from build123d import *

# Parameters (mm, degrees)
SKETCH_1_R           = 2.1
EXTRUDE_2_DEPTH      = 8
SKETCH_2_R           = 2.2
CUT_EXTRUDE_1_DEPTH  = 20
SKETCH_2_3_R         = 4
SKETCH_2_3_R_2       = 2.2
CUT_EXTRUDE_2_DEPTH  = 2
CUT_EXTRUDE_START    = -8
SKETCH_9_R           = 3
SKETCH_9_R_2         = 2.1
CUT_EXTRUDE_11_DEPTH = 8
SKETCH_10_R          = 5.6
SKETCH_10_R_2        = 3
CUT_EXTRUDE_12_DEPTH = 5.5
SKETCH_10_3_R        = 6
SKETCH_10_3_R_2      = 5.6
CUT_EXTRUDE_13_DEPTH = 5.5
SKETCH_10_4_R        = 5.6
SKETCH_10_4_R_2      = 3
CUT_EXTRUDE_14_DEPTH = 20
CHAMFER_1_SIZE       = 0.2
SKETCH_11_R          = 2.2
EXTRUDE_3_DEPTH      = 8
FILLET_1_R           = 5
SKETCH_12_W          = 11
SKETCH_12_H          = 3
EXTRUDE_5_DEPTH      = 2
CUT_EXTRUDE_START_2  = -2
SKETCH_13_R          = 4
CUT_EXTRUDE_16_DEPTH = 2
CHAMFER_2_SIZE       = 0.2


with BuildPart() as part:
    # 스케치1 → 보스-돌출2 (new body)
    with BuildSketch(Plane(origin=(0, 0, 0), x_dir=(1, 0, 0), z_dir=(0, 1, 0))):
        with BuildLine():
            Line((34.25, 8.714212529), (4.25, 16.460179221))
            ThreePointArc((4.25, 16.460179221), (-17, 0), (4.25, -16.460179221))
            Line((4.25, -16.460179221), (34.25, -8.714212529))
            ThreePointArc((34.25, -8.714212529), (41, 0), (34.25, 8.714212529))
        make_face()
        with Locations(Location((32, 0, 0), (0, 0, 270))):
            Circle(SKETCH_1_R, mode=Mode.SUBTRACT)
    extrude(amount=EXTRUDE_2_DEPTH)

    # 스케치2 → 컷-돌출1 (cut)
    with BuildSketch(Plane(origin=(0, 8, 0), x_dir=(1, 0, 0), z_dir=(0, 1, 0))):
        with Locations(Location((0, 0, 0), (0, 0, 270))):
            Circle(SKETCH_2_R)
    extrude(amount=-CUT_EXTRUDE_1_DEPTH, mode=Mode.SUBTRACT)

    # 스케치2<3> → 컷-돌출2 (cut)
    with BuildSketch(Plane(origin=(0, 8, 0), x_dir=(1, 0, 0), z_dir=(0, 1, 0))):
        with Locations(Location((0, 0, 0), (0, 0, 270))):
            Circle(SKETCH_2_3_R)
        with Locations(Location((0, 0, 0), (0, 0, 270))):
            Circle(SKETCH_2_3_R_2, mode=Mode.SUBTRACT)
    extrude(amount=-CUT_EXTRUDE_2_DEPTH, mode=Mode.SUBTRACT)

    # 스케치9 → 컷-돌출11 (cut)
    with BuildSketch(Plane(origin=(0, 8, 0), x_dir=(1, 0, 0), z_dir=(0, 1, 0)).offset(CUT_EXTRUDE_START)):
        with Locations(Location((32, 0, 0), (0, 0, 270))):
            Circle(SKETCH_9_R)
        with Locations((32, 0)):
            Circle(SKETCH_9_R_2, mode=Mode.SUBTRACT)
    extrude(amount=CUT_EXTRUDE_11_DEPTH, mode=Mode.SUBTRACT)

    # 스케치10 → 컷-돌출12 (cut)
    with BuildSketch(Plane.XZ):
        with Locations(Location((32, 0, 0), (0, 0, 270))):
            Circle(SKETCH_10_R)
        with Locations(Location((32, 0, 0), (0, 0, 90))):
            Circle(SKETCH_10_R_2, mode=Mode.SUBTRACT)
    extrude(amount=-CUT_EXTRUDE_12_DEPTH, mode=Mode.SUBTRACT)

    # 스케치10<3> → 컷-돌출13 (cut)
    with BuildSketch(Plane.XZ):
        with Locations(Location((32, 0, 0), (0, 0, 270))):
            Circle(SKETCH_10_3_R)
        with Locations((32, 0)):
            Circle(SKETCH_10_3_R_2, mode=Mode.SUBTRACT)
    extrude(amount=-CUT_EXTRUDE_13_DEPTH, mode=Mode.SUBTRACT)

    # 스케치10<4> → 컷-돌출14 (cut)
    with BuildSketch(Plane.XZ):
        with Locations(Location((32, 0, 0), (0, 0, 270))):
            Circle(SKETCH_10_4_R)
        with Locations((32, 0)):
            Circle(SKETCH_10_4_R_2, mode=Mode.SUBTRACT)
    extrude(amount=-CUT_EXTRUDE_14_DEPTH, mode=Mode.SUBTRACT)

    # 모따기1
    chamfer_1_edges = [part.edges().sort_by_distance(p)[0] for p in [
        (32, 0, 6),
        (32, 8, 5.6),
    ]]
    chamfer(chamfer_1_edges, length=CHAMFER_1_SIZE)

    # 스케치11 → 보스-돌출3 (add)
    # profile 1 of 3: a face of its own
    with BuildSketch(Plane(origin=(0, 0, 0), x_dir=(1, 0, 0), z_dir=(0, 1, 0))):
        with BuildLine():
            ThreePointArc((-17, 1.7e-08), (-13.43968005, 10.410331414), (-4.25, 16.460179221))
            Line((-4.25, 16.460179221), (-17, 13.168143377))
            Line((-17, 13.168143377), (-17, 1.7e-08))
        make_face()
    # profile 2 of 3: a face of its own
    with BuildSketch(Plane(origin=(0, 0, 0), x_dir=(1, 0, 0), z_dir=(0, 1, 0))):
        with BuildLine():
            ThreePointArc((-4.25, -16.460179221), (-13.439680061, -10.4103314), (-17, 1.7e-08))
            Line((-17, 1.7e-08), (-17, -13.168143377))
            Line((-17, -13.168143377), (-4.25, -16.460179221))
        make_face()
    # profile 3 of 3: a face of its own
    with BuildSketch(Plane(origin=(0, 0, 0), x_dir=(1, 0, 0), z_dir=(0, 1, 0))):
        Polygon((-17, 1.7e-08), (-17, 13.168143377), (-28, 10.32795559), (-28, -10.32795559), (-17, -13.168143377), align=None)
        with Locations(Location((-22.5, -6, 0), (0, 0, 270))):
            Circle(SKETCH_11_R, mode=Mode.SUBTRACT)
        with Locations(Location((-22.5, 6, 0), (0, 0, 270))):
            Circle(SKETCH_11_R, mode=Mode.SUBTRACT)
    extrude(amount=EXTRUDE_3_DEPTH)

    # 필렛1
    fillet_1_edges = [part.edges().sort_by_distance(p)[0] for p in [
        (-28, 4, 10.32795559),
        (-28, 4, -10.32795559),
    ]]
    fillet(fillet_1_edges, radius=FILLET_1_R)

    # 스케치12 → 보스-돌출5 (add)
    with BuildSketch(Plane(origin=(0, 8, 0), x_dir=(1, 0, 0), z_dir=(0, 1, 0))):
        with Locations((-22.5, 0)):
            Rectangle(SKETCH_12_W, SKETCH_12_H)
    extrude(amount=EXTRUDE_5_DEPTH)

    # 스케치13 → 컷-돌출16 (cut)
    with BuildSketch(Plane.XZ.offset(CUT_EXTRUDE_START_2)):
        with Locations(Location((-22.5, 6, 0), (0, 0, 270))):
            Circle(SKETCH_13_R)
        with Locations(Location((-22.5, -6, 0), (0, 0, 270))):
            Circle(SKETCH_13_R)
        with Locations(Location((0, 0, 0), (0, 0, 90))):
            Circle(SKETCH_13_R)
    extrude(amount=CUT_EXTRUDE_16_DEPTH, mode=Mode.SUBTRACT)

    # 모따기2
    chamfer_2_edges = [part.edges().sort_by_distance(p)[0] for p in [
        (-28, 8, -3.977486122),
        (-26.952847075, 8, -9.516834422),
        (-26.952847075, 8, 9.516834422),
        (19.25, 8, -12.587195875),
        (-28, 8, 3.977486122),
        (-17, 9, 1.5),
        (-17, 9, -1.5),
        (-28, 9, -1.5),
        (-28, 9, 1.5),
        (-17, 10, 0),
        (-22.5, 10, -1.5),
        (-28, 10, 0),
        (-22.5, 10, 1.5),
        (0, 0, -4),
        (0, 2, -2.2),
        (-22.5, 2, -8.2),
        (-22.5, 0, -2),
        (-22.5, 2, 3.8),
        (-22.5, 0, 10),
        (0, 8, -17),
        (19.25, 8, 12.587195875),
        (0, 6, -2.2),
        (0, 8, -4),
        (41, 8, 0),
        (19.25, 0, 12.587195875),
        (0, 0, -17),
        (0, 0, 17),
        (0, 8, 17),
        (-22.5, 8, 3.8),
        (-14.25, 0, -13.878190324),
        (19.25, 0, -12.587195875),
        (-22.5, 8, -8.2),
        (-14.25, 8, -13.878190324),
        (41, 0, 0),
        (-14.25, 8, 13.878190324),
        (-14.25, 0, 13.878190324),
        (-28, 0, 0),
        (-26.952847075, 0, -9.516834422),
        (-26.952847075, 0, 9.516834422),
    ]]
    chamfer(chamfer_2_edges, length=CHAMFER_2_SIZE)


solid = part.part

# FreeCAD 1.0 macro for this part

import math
import FreeCAD as App
import Part
import Sketcher


def edges_at(feature, points):
    """Names of the edges that pass closest to the given points."""
    edges = feature.Shape.Edges
    near = lambda p: min(range(len(edges)), key=lambda i: edges[i].distToShape(Part.Vertex(*p))[0])
    return sorted({f"Edge{near(p) + 1}" for p in points})

doc = App.newDocument("Part")
params = doc.addObject("Spreadsheet::Sheet", "Params")
for row, (alias, value) in enumerate([
    ("sketch1_radius", "17 mm"),
    ("sketch1_radius2", "9 mm"),
    ("sketch1_diameter", "4.2 mm"),
    ("pad1_length", "8 mm"),
    ("sketch2_diameter", "4.4 mm"),
    ("pocket1_length", "20 mm"),
    ("sketch3_diameter", "8 mm"),
    ("sketch3_diameter2", "4.4 mm"),
    ("pocket2_length", "2 mm"),
    ("sketch4_diameter", "6 mm"),
    ("sketch4_diameter2", "4.2 mm"),
    ("pocket3_length", "8 mm"),
    ("sketch5_diameter", "6 mm"),
    ("sketch5_diameter2", "11.2 mm"),
    ("pocket4_length", "5.5 mm"),
    ("sketch6_diameter", "12 mm"),
    ("sketch6_diameter2", "11.2 mm"),
    ("pocket5_length", "5.5 mm"),
    ("sketch7_diameter", "6 mm"),
    ("sketch7_diameter2", "11.2 mm"),
    ("pocket6_length", "20 mm"),
    ("chamfer_size", "0.2 mm"),
    ("sketch8_radius", "17 mm"),
    ("sketch8_diameter", "4.4 mm"),
    ("pad2_length", "8 mm"),
    ("fillet_radius", "5 mm"),
    ("sketch9_width", "11 mm"),
    ("sketch9_height", "3 mm"),
    ("pad3_length", "2 mm"),
    ("sketch10_diameter", "8 mm"),
    ("pocket7_length", "2 mm"),
    ("chamfer2_size", "0.2 mm"),
], start=1):
    params.set(f"A{row}", alias)
    params.set(f"B{row}", "=" + value)
    params.setAlias(f"B{row}", alias)

body = doc.addObject("PartDesign::Body", "Body")

# Sketch on XZ plane
sketch1 = doc.addObject("Sketcher::SketchObject", "Sketch")
body.addObject(sketch1)
sketch1.AttachmentSupport = (doc.XZ_Plane, [""])
sketch1.MapMode = "FlatFace"
sketch1.addGeometry([
    Part.LineSegment(App.Vector(34.2, -8.7, 0), App.Vector(4.2, -16.5, 0)),  # 0
    Part.ArcOfCircle(Part.Circle(App.Vector(0, 0, 0), App.Vector(0, 0, 1), 17), math.radians(76), math.radians(284)),  # 1
    Part.LineSegment(App.Vector(4.2, 16.5, 0), App.Vector(34.2, 8.7, 0)),  # 2
    Part.ArcOfCircle(Part.Circle(App.Vector(32, 0, 0), App.Vector(0, 0, 1), 9), math.radians(-76), math.radians(76)),  # 3
    Part.Circle(App.Vector(32, 0, 0), App.Vector(0, 0, 1), 2.1),  # 4
], False)
sketch1.addConstraint([
    Sketcher.Constraint("Tangent", 0, 2, 1, 2),
    Sketcher.Constraint("Tangent", 1, 1, 2, 1),
    Sketcher.Constraint("Tangent", 2, 2, 3, 2),
    Sketcher.Constraint("Tangent", 3, 1, 0, 1),
    Sketcher.Constraint("Coincident", 1, 3, -1, 1),
    Sketcher.Constraint("Coincident", 4, 3, 3, 3),
    Sketcher.Constraint("PointOnObject", 3, 3, -1),
    Sketcher.Constraint("Radius", 1, 17.0),
    Sketcher.Constraint("Radius", 3, 9.0),
    Sketcher.Constraint("Diameter", 4, 4.2),
    Sketcher.Constraint("DistanceX", -1, 1, 3, 3, 32.0),
])
sketch1.setExpression("Constraints[7]", "Params.sketch1_radius")
sketch1.setExpression("Constraints[8]", "Params.sketch1_radius2")
sketch1.setExpression("Constraints[9]", "Params.sketch1_diameter")
pad1 = doc.addObject("PartDesign::Pad", "Pad")
body.addObject(pad1)
pad1.Profile = sketch1
pad1.setExpression("Length", "Params.pad1_length")
pad1.Reversed = True

# Sketch on XZ plane
sketch2 = doc.addObject("Sketcher::SketchObject", "Sketch001")
body.addObject(sketch2)
sketch2.AttachmentSupport = (doc.XZ_Plane, [""])
sketch2.MapMode = "FlatFace"
sketch2.AttachmentOffset = App.Placement(App.Vector(0, 0, -8), App.Rotation())
sketch2.addGeometry(Part.Circle(App.Vector(0, 0, 0), App.Vector(0, 0, 1), 2.2), False)
sketch2.addConstraint([
    Sketcher.Constraint("Coincident", 0, 3, -1, 1),
    Sketcher.Constraint("Diameter", 0, 4.4),
])
sketch2.setExpression("Constraints[1]", "Params.sketch2_diameter")
pocket1 = doc.addObject("PartDesign::Pocket", "Pocket")
body.addObject(pocket1)
pocket1.Profile = sketch2
pocket1.setExpression("Length", "Params.pocket1_length")
pocket1.Reversed = True

# Sketch on XZ plane
sketch3 = doc.addObject("Sketcher::SketchObject", "Sketch002")
body.addObject(sketch3)
sketch3.AttachmentSupport = (doc.XZ_Plane, [""])
sketch3.MapMode = "FlatFace"
sketch3.AttachmentOffset = App.Placement(App.Vector(0, 0, -8), App.Rotation())
sketch3.addGeometry([
    Part.Circle(App.Vector(0, 0, 0), App.Vector(0, 0, 1), 4),
    Part.Circle(App.Vector(0, 0, 0), App.Vector(0, 0, 1), 2.2),
], False)
sketch3.addConstraint([
    Sketcher.Constraint("Coincident", 0, 3, -1, 1),
    Sketcher.Constraint("Coincident", 1, 3, -1, 1),
    Sketcher.Constraint("Diameter", 0, 8.0),
    Sketcher.Constraint("Diameter", 1, 4.4),
])
sketch3.setExpression("Constraints[2]", "Params.sketch3_diameter")
sketch3.setExpression("Constraints[3]", "Params.sketch3_diameter2")
pocket2 = doc.addObject("PartDesign::Pocket", "Pocket001")
body.addObject(pocket2)
pocket2.Profile = sketch3
pocket2.setExpression("Length", "Params.pocket2_length")
pocket2.Reversed = True

# Sketch on XZ plane
sketch4 = doc.addObject("Sketcher::SketchObject", "Sketch003")
body.addObject(sketch4)
sketch4.AttachmentSupport = (doc.XZ_Plane, [""])
sketch4.MapMode = "FlatFace"
sketch4.addGeometry([
    Part.Circle(App.Vector(32, 0, 0), App.Vector(0, 0, 1), 3),
    Part.Circle(App.Vector(32, 0, 0), App.Vector(0, 0, 1), 2.1),
], False)
sketch4.addConstraint([
    Sketcher.Constraint("Coincident", 1, 3, 0, 3),
    Sketcher.Constraint("PointOnObject", 0, 3, -1),
    Sketcher.Constraint("Diameter", 0, 6.0),
    Sketcher.Constraint("Diameter", 1, 4.2),
    Sketcher.Constraint("DistanceX", -1, 1, 0, 3, 32.0),
])
sketch4.setExpression("Constraints[2]", "Params.sketch4_diameter")
sketch4.setExpression("Constraints[3]", "Params.sketch4_diameter2")
pocket3 = doc.addObject("PartDesign::Pocket", "Pocket002")
body.addObject(pocket3)
pocket3.Profile = sketch4
pocket3.setExpression("Length", "Params.pocket3_length")

# Sketch on XZ plane
sketch5 = doc.addObject("Sketcher::SketchObject", "Sketch004")
body.addObject(sketch5)
sketch5.AttachmentSupport = (doc.XZ_Plane, [""])
sketch5.MapMode = "FlatFace"
sketch5.addGeometry([
    Part.Circle(App.Vector(32, 0, 0), App.Vector(0, 0, 1), 5.6),
    Part.Circle(App.Vector(32, 0, 0), App.Vector(0, 0, 1), 3),
], False)
sketch5.addConstraint([
    Sketcher.Constraint("Coincident", 1, 3, 0, 3),
    Sketcher.Constraint("PointOnObject", 0, 3, -1),
    Sketcher.Constraint("Diameter", 1, 6.0),
    Sketcher.Constraint("Diameter", 0, 11.2),
    Sketcher.Constraint("DistanceX", -1, 1, 0, 3, 32.0),
])
sketch5.setExpression("Constraints[2]", "Params.sketch5_diameter")
sketch5.setExpression("Constraints[3]", "Params.sketch5_diameter2")
pocket4 = doc.addObject("PartDesign::Pocket", "Pocket003")
body.addObject(pocket4)
pocket4.Profile = sketch5
pocket4.setExpression("Length", "Params.pocket4_length")

# Sketch on XZ plane
sketch6 = doc.addObject("Sketcher::SketchObject", "Sketch005")
body.addObject(sketch6)
sketch6.AttachmentSupport = (doc.XZ_Plane, [""])
sketch6.MapMode = "FlatFace"
sketch6.addGeometry([
    Part.Circle(App.Vector(32, 0, 0), App.Vector(0, 0, 1), 6),
    Part.Circle(App.Vector(32, 0, 0), App.Vector(0, 0, 1), 6),
], False)
sketch6.addConstraint([
    Sketcher.Constraint("Coincident", 1, 3, 0, 3),
    Sketcher.Constraint("PointOnObject", 0, 3, -1),
    Sketcher.Constraint("Diameter", 0, 12.0),
    Sketcher.Constraint("Diameter", 1, 11.2),
    Sketcher.Constraint("DistanceX", -1, 1, 0, 3, 32.0),
])
sketch6.setExpression("Constraints[2]", "Params.sketch6_diameter")
sketch6.setExpression("Constraints[3]", "Params.sketch6_diameter2")
pocket5 = doc.addObject("PartDesign::Pocket", "Pocket004")
body.addObject(pocket5)
pocket5.Profile = sketch6
pocket5.setExpression("Length", "Params.pocket5_length")

# Sketch on XZ plane
sketch7 = doc.addObject("Sketcher::SketchObject", "Sketch006")
body.addObject(sketch7)
sketch7.AttachmentSupport = (doc.XZ_Plane, [""])
sketch7.MapMode = "FlatFace"
sketch7.addGeometry([
    Part.Circle(App.Vector(32, 0, 0), App.Vector(0, 0, 1), 5.6),
    Part.Circle(App.Vector(32, 0, 0), App.Vector(0, 0, 1), 3),
], False)
sketch7.addConstraint([
    Sketcher.Constraint("Coincident", 1, 3, 0, 3),
    Sketcher.Constraint("PointOnObject", 0, 3, -1),
    Sketcher.Constraint("Diameter", 1, 6.0),
    Sketcher.Constraint("Diameter", 0, 11.2),
    Sketcher.Constraint("DistanceX", -1, 1, 0, 3, 32.0),
])
sketch7.setExpression("Constraints[2]", "Params.sketch7_diameter")
sketch7.setExpression("Constraints[3]", "Params.sketch7_diameter2")
pocket6 = doc.addObject("PartDesign::Pocket", "Pocket005")
body.addObject(pocket6)
pocket6.Profile = sketch7
pocket6.setExpression("Length", "Params.pocket6_length")
doc.recompute()

chamfer = doc.addObject("PartDesign::Chamfer", "Chamfer")
body.addObject(chamfer)
chamfer.Base = (pocket6, edges_at(pocket6, [(32, 0, 6), (32, 8, 5.6)]))
chamfer.setExpression("Size", "Params.chamfer_size")

# Sketch on XZ plane
sketch8 = doc.addObject("Sketcher::SketchObject", "Sketch007")
body.addObject(sketch8)
sketch8.AttachmentSupport = (doc.XZ_Plane, [""])
sketch8.MapMode = "FlatFace"
sketch8.addGeometry([
    Part.ArcOfCircle(Part.Circle(App.Vector(0, 0, 0), App.Vector(0, 0, 1), 17), math.radians(-180), math.radians(-104)),  # 0
    Part.LineSegment(App.Vector(-4.2, -16.5, 0), App.Vector(-17, -13.2, 0)),  # 1
    Part.LineSegment(App.Vector(-17, -13.2, 0), App.Vector(-28, -10.3, 0)),  # 2
    Part.LineSegment(App.Vector(-28, -10.3, 0), App.Vector(-28, 10.3, 0)),  # 3
    Part.LineSegment(App.Vector(-28, 10.3, 0), App.Vector(-17, 13.2, 0)),  # 4
    Part.LineSegment(App.Vector(-17, 13.2, 0), App.Vector(-4.2, 16.5, 0)),  # 5
    Part.ArcOfCircle(Part.Circle(App.Vector(0, 0, 0), App.Vector(0, 0, 1), 17), math.radians(104), math.radians(180)),  # 6
    Part.Circle(App.Vector(-22.5, -6, 0), App.Vector(0, 0, 1), 2.2),  # 7
    Part.Circle(App.Vector(-22.5, 6, 0), App.Vector(0, 0, 1), 2.2),  # 8
], False)
sketch8.addConstraint([
    Sketcher.Constraint("Tangent", 0, 2, 1, 1),
    Sketcher.Constraint("Coincident", 1, 2, 2, 1),
    Sketcher.Constraint("Coincident", 2, 2, 3, 1),
    Sketcher.Constraint("Coincident", 3, 2, 4, 1),
    Sketcher.Constraint("Coincident", 4, 2, 5, 1),
    Sketcher.Constraint("Tangent", 5, 2, 6, 1),
    Sketcher.Constraint("Tangent", 6, 2, 0, 1),
    Sketcher.Constraint("Vertical", 3),
    Sketcher.Constraint("Coincident", 0, 3, -1, 1),
    Sketcher.Constraint("Equal", 0, 6),
    Sketcher.Constraint("Equal", 7, 8),
    Sketcher.Constraint("Symmetric", 7, 3, 8, 3, -1),
    Sketcher.Constraint("Symmetric", 1, 2, 4, 2, -1),
    Sketcher.Constraint("PointOnObject", 6, 2, -1),
    Sketcher.Constraint("Parallel", 1, 2),
    Sketcher.Constraint("Parallel", 4, 5),
    Sketcher.Constraint("Vertical", 4, 2, 6, 2),
    Sketcher.Constraint("Radius", 0, 17.0),
    Sketcher.Constraint("Diameter", 7, 4.4),
    Sketcher.Constraint("DistanceY", 7, 3, -1, 1, 6.0),
    Sketcher.Constraint("DistanceX", 2, 2, -1, 1, 28.0),
    Sketcher.Constraint("DistanceX", 7, 3, -1, 1, 22.5),
    Sketcher.Constraint("DistanceX", 0, 2, -1, 1, 4.25),
])
sketch8.setExpression("Constraints[17]", "Params.sketch8_radius")
sketch8.setExpression("Constraints[18]", "Params.sketch8_diameter")
pad2 = doc.addObject("PartDesign::Pad", "Pad001")
body.addObject(pad2)
pad2.Profile = sketch8
pad2.setExpression("Length", "Params.pad2_length")
pad2.Reversed = True
doc.recompute()

fillet = doc.addObject("PartDesign::Fillet", "Fillet")
body.addObject(fillet)
fillet.Base = (pad2, edges_at(pad2, [(-28, 4, 10.328), (-28, 4, -10.328)]))
fillet.setExpression("Radius", "Params.fillet_radius")

# Sketch on XZ plane
sketch9 = doc.addObject("Sketcher::SketchObject", "Sketch008")
body.addObject(sketch9)
sketch9.AttachmentSupport = (doc.XZ_Plane, [""])
sketch9.MapMode = "FlatFace"
sketch9.AttachmentOffset = App.Placement(App.Vector(0, 0, -8), App.Rotation())
sketch9.addGeometry([
    Part.LineSegment(App.Vector(-28, -1.5, 0), App.Vector(-28, 1.5, 0)),
    Part.LineSegment(App.Vector(-28, 1.5, 0), App.Vector(-17, 1.5, 0)),
    Part.LineSegment(App.Vector(-17, 1.5, 0), App.Vector(-17, -1.5, 0)),
    Part.LineSegment(App.Vector(-17, -1.5, 0), App.Vector(-28, -1.5, 0)),
], False)
sketch9.addConstraint([
    Sketcher.Constraint("Coincident", 0, 2, 1, 1),
    Sketcher.Constraint("Coincident", 1, 2, 2, 1),
    Sketcher.Constraint("Coincident", 2, 2, 3, 1),
    Sketcher.Constraint("Coincident", 3, 2, 0, 1),
    Sketcher.Constraint("Vertical", 0),
    Sketcher.Constraint("Horizontal", 1),
    Sketcher.Constraint("Vertical", 2),
    Sketcher.Constraint("Horizontal", 3),
    Sketcher.Constraint("DistanceX", 1, 1, 1, 2, 11.0),
    Sketcher.Constraint("DistanceY", 0, 1, 0, 2, 3.0),
    Sketcher.Constraint("DistanceX", 0, 2, -1, 1, 28.0),
    Sketcher.Constraint("DistanceY", -1, 1, 0, 2, 1.5),
])
sketch9.setExpression("Constraints[8]", "Params.sketch9_width")
sketch9.setExpression("Constraints[9]", "Params.sketch9_height")
pad3 = doc.addObject("PartDesign::Pad", "Pad002")
body.addObject(pad3)
pad3.Profile = sketch9
pad3.setExpression("Length", "Params.pad3_length")
pad3.Reversed = True

# Sketch on XZ plane
sketch10 = doc.addObject("Sketcher::SketchObject", "Sketch009")
body.addObject(sketch10)
sketch10.AttachmentSupport = (doc.XZ_Plane, [""])
sketch10.MapMode = "FlatFace"
sketch10.AttachmentOffset = App.Placement(App.Vector(0, 0, -2), App.Rotation())
sketch10.addGeometry([
    Part.Circle(App.Vector(-22.5, 6, 0), App.Vector(0, 0, 1), 4),
    Part.Circle(App.Vector(-22.5, -6, 0), App.Vector(0, 0, 1), 4),
    Part.Circle(App.Vector(0, 0, 0), App.Vector(0, 0, 1), 4),
], False)
sketch10.addConstraint([
    Sketcher.Constraint("Coincident", 2, 3, -1, 1),
    Sketcher.Constraint("Equal", 0, 1),
    Sketcher.Constraint("Equal", 1, 2),
    Sketcher.Constraint("Symmetric", 0, 3, 1, 3, -1),
    Sketcher.Constraint("Diameter", 0, 8.0),
    Sketcher.Constraint("DistanceY", -1, 1, 0, 3, 6.0),
    Sketcher.Constraint("DistanceX", 0, 3, -1, 1, 22.5),
])
sketch10.setExpression("Constraints[4]", "Params.sketch10_diameter")
pocket7 = doc.addObject("PartDesign::Pocket", "Pocket006")
body.addObject(pocket7)
pocket7.Profile = sketch10
pocket7.setExpression("Length", "Params.pocket7_length")
pocket7.Reversed = True
doc.recompute()

chamfer2 = doc.addObject("PartDesign::Chamfer", "Chamfer001")
body.addObject(chamfer2)
chamfer2.Base = (pocket7, edges_at(pocket7, [
    (-28, 8, -3.977),
    (-26.953, 8, -9.517),
    (-26.953, 8, 9.517),
    (19.25, 8, -12.587),
    (-28, 8, 3.977),
    (-17, 9, 1.5),
    (-17, 9, -1.5),
    (-28, 9, -1.5),
    (-28, 9, 1.5),
    (-17, 10, 0),
    (-22.5, 10, -1.5),
    (-28, 10, 0),
    (-22.5, 10, 1.5),
    (0, 0, -4),
    (0, 2, -2.2),
    (-22.5, 2, -8.2),
    (-22.5, 0, -2),
    (-22.5, 2, 3.8),
    (-22.5, 0, 10),
    (0, 8, -17),
    (19.25, 8, 12.587),
    (0, 6, -2.2),
    (0, 8, -4),
    (41, 8, 0),
    (19.25, 0, 12.587),
    (0, 0, -17),
    (0, 0, 17),
    (0, 8, 17),
    (-22.5, 8, 3.8),
    (-10.625, 0, -14.814),
    (19.25, 0, -12.587),
    (-22.5, 8, -8.2),
    (-10.625, 8, -14.814),
    (41, 0, 0),
    (-10.625, 8, 14.814),
    (-10.625, 0, 14.814),
    (-28, 0, 0),
    (-26.953, 0, -9.517),
    (-26.953, 0, 9.517),
]))
chamfer2.setExpression("Size", "Params.chamfer2_size")

doc.recompute()
